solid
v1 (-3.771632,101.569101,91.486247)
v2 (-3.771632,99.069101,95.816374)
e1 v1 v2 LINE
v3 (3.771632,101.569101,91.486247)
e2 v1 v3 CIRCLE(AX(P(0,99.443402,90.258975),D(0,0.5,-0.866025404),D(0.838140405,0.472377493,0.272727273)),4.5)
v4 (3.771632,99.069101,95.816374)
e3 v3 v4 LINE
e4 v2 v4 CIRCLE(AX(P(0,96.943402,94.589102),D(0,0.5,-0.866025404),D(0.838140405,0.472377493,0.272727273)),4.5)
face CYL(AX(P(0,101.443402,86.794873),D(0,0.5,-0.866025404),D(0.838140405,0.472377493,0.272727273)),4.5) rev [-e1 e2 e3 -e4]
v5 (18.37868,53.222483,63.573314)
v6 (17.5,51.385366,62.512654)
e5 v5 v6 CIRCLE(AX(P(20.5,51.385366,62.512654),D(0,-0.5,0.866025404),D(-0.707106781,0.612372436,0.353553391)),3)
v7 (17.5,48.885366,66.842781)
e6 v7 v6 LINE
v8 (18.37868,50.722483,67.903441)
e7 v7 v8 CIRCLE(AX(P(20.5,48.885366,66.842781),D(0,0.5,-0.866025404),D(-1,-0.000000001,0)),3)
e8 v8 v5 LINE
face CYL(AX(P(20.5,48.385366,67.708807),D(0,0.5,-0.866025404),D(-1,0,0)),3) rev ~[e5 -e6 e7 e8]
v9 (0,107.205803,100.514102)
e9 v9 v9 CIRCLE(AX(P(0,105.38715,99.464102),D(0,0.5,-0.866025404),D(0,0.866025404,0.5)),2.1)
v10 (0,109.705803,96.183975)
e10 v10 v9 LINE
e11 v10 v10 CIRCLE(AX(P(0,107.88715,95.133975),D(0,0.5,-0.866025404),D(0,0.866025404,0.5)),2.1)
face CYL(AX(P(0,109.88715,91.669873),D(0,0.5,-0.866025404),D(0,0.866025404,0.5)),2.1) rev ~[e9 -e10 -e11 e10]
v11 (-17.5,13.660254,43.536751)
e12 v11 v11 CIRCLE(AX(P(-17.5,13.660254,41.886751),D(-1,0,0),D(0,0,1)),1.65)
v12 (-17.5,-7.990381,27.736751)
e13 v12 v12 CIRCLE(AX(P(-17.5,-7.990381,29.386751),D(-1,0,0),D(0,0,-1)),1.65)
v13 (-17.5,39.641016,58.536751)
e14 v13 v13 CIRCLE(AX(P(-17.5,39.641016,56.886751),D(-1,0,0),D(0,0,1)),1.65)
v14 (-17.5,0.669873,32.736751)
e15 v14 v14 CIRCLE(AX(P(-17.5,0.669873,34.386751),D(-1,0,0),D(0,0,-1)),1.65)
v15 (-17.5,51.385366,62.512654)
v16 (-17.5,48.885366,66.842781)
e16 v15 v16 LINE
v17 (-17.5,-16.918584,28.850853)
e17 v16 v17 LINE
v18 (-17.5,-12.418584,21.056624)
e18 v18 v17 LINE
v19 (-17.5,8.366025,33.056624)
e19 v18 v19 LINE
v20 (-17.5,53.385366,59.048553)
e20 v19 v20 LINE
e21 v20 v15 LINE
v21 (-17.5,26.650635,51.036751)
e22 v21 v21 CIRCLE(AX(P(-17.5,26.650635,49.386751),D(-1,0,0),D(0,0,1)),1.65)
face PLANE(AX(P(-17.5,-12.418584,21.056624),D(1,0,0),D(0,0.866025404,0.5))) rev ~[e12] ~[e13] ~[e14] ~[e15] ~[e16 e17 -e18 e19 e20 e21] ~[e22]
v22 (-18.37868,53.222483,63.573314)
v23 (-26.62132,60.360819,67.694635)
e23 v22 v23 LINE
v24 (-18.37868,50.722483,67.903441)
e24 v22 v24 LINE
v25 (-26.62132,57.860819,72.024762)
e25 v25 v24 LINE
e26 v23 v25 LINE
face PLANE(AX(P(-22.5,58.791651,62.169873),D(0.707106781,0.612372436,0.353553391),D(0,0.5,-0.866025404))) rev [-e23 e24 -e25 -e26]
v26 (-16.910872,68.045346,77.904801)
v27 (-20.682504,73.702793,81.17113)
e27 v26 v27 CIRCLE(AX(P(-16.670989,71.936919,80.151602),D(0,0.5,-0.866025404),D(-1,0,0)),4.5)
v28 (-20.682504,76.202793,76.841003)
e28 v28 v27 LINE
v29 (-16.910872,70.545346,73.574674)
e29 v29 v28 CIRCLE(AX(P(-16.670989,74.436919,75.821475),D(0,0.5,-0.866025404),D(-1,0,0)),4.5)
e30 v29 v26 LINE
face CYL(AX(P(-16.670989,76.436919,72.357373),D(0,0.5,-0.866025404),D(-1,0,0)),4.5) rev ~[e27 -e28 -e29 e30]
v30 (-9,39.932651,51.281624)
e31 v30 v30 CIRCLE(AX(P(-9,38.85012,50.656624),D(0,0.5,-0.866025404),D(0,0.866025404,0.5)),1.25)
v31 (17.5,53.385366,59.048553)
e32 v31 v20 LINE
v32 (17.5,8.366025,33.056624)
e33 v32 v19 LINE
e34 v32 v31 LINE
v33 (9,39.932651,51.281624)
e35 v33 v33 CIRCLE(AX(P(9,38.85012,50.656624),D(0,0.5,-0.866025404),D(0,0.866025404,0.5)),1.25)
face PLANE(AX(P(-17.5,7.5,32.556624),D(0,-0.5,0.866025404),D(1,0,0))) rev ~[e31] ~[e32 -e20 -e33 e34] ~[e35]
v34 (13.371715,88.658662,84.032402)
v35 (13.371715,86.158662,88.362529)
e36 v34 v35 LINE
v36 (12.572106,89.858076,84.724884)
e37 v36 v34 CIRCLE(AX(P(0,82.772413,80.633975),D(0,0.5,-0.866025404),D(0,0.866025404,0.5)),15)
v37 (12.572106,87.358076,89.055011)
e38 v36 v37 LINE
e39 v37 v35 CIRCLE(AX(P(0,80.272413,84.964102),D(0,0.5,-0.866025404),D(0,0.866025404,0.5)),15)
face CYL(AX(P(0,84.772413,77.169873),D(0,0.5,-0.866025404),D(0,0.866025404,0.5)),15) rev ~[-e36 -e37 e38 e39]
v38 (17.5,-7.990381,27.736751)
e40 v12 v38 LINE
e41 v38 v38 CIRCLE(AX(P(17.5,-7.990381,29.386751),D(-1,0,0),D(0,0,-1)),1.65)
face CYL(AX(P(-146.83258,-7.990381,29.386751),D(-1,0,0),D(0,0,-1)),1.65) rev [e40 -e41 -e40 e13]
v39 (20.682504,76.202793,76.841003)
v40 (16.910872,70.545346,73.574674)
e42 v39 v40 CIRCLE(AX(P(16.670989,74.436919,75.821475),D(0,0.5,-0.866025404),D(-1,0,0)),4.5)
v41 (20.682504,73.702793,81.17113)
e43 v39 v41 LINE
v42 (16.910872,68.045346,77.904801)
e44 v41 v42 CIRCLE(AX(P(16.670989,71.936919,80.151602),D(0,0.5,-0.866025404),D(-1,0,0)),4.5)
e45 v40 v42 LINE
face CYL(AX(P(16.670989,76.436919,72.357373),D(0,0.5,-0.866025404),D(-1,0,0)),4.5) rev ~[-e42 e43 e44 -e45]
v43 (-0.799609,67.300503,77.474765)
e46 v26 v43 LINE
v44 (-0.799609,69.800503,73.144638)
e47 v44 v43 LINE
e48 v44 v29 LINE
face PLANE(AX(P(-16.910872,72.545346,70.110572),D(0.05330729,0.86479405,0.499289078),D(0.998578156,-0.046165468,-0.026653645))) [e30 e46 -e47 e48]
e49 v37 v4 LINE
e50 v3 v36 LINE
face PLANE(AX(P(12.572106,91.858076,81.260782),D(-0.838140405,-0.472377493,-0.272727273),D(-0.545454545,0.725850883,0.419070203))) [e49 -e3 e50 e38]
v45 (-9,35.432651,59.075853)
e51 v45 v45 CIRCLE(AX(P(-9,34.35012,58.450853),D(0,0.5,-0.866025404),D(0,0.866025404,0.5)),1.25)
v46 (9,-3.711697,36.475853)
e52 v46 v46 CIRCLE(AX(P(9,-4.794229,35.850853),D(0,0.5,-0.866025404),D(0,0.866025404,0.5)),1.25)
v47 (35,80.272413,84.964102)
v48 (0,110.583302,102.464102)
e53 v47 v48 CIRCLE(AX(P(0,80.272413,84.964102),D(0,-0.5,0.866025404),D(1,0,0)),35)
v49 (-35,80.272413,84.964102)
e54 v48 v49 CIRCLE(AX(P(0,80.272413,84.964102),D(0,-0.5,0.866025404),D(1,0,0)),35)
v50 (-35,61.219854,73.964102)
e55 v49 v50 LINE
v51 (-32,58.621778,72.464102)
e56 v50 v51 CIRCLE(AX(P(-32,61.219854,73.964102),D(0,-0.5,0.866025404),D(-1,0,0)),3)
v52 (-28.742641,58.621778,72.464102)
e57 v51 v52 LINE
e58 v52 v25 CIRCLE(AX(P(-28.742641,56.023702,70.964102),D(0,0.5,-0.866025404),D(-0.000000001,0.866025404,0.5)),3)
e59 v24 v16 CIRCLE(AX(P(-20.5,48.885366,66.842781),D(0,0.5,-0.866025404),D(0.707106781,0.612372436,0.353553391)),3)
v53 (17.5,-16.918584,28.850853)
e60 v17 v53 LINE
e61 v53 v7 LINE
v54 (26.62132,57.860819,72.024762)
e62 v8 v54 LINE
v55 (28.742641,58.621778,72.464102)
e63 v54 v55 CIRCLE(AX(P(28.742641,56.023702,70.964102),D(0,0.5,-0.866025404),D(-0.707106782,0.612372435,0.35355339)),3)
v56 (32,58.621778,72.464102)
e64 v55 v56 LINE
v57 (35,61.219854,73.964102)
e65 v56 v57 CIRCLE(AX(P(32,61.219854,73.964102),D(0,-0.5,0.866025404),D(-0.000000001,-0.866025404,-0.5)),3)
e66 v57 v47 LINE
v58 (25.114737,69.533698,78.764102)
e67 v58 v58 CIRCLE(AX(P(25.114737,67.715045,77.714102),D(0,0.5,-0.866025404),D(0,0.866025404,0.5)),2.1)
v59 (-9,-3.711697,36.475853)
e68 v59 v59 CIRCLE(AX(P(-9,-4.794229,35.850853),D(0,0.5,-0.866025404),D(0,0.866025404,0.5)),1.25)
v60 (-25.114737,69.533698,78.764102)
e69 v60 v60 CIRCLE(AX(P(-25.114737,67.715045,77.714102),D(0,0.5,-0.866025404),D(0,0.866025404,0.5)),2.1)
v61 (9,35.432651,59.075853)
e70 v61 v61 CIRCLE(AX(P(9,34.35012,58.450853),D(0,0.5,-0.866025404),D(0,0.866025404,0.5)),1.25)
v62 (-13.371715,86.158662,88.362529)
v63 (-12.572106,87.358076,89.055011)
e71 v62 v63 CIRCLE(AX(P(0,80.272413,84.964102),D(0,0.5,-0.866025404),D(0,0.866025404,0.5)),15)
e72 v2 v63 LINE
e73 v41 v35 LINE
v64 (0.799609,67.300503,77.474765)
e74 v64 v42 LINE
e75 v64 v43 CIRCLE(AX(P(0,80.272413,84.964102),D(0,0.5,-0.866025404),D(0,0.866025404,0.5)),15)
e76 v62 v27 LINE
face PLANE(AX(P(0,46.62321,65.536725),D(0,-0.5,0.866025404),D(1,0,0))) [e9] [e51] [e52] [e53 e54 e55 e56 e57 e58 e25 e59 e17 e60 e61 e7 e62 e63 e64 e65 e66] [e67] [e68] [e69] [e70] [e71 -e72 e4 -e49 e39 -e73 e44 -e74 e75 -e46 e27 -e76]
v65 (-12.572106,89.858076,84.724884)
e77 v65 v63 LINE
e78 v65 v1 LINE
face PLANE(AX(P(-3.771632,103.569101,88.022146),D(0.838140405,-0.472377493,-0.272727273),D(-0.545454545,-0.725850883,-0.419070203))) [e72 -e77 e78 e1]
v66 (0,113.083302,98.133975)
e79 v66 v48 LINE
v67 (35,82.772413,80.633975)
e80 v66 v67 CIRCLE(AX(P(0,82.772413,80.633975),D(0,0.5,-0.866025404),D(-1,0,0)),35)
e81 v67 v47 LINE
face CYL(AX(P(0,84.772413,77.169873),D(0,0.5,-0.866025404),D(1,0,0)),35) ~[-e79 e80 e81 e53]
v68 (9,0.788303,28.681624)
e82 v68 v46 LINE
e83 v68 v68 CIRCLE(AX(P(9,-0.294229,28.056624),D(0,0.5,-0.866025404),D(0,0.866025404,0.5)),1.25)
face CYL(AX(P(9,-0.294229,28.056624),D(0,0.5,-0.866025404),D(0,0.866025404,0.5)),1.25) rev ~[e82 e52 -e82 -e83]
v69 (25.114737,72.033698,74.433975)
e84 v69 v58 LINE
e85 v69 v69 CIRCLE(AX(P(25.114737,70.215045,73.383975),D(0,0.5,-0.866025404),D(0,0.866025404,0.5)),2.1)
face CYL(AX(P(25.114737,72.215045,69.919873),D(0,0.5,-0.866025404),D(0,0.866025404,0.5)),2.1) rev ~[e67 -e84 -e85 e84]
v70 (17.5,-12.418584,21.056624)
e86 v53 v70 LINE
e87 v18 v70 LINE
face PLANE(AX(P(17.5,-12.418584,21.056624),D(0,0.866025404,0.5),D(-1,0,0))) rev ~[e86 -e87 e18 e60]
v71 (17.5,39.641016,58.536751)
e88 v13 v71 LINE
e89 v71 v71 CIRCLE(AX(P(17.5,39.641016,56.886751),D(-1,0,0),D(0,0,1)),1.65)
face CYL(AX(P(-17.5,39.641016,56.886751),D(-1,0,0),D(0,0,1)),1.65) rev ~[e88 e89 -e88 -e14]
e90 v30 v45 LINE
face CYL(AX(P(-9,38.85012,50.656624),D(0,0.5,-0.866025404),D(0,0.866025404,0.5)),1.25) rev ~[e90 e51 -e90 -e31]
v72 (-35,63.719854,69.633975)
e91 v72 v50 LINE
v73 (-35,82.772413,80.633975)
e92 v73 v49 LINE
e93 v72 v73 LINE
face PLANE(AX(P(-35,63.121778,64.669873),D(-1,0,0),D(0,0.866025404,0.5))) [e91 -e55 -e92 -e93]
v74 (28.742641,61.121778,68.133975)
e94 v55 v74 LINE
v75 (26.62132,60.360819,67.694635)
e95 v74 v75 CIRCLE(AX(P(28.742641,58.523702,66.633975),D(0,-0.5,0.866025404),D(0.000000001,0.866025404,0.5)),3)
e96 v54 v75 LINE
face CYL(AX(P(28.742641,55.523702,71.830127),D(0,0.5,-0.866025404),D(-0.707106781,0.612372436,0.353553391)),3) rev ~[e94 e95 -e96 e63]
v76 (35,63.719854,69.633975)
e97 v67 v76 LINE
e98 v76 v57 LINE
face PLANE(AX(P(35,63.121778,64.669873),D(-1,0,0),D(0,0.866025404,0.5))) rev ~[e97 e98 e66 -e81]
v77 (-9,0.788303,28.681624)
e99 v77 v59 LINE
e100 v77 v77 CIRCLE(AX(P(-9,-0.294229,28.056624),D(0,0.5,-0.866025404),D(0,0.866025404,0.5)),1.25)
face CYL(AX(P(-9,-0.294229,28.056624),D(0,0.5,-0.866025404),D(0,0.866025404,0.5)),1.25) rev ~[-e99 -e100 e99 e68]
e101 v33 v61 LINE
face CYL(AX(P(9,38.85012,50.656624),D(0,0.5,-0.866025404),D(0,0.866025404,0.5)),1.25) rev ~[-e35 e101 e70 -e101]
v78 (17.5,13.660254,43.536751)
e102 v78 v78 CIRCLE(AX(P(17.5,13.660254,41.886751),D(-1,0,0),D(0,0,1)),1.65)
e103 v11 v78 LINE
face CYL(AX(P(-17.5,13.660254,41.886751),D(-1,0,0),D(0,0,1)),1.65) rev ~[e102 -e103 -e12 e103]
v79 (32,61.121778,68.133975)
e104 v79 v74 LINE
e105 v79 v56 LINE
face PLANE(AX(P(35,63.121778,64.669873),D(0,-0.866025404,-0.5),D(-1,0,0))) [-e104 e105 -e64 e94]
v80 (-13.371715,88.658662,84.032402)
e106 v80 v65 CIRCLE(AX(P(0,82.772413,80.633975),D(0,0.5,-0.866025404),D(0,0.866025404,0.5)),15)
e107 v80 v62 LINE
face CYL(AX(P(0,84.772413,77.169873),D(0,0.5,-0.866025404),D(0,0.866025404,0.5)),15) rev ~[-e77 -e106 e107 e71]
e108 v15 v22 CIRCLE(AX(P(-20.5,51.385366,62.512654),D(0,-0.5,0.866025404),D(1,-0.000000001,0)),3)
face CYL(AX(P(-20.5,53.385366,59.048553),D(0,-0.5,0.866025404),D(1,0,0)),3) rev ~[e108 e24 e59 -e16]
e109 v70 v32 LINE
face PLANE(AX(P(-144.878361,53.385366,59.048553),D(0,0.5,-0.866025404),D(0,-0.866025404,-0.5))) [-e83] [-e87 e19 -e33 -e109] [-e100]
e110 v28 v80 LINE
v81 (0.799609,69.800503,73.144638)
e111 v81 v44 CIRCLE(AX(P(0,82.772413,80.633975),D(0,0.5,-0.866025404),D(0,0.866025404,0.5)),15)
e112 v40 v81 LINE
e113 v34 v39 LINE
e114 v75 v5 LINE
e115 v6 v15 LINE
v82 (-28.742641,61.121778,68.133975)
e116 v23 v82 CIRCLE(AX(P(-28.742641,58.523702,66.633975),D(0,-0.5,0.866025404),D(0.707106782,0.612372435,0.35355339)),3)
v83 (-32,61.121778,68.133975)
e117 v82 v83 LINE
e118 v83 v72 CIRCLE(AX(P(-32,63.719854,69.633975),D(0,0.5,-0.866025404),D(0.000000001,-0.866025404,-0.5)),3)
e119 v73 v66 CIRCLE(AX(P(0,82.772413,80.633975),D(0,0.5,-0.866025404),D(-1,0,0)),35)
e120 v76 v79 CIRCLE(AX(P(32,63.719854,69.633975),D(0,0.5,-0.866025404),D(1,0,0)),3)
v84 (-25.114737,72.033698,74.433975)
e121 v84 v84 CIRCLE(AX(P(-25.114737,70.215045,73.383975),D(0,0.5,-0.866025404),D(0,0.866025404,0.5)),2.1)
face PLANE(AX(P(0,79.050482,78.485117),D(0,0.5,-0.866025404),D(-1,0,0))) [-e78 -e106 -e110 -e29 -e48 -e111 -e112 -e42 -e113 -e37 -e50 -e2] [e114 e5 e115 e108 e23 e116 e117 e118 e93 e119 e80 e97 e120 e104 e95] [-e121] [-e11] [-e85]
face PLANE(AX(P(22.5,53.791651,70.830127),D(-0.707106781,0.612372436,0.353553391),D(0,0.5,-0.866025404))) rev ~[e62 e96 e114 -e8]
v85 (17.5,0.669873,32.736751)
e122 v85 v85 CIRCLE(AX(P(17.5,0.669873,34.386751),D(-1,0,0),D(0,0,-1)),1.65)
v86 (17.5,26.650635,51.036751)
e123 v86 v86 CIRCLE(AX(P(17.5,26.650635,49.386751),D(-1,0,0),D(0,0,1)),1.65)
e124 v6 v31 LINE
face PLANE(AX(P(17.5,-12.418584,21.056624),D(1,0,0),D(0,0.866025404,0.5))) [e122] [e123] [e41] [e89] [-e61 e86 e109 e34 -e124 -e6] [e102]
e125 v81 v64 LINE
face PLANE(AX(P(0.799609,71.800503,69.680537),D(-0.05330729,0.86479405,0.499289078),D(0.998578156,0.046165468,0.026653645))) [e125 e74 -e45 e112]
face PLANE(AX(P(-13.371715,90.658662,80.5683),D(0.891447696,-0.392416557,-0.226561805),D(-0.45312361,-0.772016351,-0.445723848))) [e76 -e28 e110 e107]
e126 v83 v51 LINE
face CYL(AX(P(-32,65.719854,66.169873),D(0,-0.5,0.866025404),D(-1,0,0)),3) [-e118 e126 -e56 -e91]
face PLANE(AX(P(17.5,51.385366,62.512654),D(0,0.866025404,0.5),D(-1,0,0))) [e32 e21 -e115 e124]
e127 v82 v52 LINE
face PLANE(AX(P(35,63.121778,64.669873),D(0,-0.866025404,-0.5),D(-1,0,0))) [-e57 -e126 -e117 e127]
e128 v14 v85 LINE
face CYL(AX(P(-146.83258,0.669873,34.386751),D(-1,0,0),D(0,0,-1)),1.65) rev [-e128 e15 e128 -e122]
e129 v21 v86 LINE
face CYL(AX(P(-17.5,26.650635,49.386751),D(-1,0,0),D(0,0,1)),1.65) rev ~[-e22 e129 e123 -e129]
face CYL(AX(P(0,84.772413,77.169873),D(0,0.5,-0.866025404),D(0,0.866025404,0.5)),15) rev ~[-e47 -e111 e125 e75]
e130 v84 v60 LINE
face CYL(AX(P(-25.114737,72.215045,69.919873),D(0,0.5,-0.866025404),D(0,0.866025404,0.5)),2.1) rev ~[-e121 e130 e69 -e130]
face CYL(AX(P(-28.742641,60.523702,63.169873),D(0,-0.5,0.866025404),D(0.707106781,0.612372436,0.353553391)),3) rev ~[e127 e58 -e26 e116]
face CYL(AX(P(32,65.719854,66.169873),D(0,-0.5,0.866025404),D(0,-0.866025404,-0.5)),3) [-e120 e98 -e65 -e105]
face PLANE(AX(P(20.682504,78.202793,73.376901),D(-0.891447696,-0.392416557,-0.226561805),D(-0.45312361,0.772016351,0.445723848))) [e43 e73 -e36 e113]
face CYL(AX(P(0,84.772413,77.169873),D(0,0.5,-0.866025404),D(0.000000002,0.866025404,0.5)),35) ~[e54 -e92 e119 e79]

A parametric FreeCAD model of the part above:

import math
import FreeCAD as App
import Part
import Sketcher
from FreeCAD import Vector
Q = App.Units.Quantity


def edges_at(feature, points):
    """Names of the edges that pass closest to the given points."""
    edges = feature.Shape.Edges
    near = lambda p: min(range(len(edges)), key=lambda i: edges[i].distToShape(Part.Vertex(*p))[0])
    return sorted({f"Edge{near(p) + 1}" for p in points})

doc = App.newDocument("Part")
body = doc.addObject("PartDesign::Body", "Body")

# Sketch on XY plane
sketch1 = doc.addObject("Sketcher::SketchObject", "Sketch")
body.addObject(sketch1)
sketch1.AttachmentSupport = (doc.XY_Plane, [""])
sketch1.MapMode = "FlatFace"
sketch1.addGeometry([
    Part.LineSegment(Vector(-18, 5, 0), Vector(-18, -5, 0)),
    Part.LineSegment(Vector(-18, -5, 0), Vector(18, -5, 0)),
    Part.LineSegment(Vector(18, -5, 0), Vector(18, 5, 0)),
    Part.LineSegment(Vector(18, 5, 0), Vector(-18, 5, 0)),
], False)
sketch1.addConstraint([
    Sketcher.Constraint("Coincident", 0, 2, 1, 1),
    Sketcher.Constraint("Coincident", 1, 2, 2, 1),
    Sketcher.Constraint("Coincident", 2, 2, 3, 1),
    Sketcher.Constraint("Coincident", 3, 2, 0, 1),
    Sketcher.Constraint("Vertical", 0),
    Sketcher.Constraint("Horizontal", 1),
    Sketcher.Constraint("Vertical", 2),
    Sketcher.Constraint("Horizontal", 3),
    Sketcher.Constraint("Symmetric", 0, 2, 2, 2, -1, 1),
    Sketcher.Constraint("DistanceX", 1, 1, 1, 2, 35.0),
    Sketcher.Constraint("DistanceY", 0, 2, 0, 1, 10.0),
])
pad1 = doc.addObject("PartDesign::Pad", "Pad")
body.addObject(pad1)
pad1.Profile = sketch1
pad1.Length = 30

# Sketch on YZ plane
sketch2 = doc.addObject("Sketcher::SketchObject", "Sketch001")
body.addObject(sketch2)
sketch2.AttachmentSupport = (doc.YZ_Plane, [""])
sketch2.MapMode = "FlatFace"
sketch2.AttachmentOffset = App.Placement(Vector(0, 0, 17.5), App.Rotation())
sketch2.addGeometry([
    Part.Circle(Vector(0, 26, 0), Vector(0, 0, 1), 1.6),
    Part.Circle(Vector(0, 4, 0), Vector(0, 0, 1), 1.6),
], False)
sketch2.addConstraint([
    Sketcher.Constraint("Equal", 0, 1),
    Sketcher.Constraint("PointOnObject", 0, 3, -2),
    Sketcher.Constraint("PointOnObject", 1, 3, -2),
    Sketcher.Constraint("Diameter", 0, 3.3),
    Sketcher.Constraint("DistanceY", -1, 1, 0, 3, 26.0),
    Sketcher.Constraint("DistanceY", -1, 1, 1, 3, 4.0),
])
pocket1 = doc.addObject("PartDesign::Pocket", "Pocket")
body.addObject(pocket1)
pocket1.Profile = sketch2
pocket1.Type = "ThroughAll"

# Sketch on XY plane
sketch3 = doc.addObject("Sketcher::SketchObject", "Sketch002")
body.addObject(sketch3)
sketch3.AttachmentSupport = (doc.XY_Plane, [""])
sketch3.MapMode = "FlatFace"
sketch3.AttachmentOffset = App.Placement(Vector(0, 0, 30), App.Rotation())
sketch3.addGeometry([
    Part.LineSegment(Vector(-18, 5, 0), Vector(-18, -5, 0)),
    Part.LineSegment(Vector(-18, -5, 0), Vector(18, -5, 0)),
    Part.LineSegment(Vector(18, -5, 0), Vector(18, 5, 0)),
    Part.LineSegment(Vector(18, 5, 0), Vector(-18, 5, 0)),
], False)
sketch3.addConstraint([
    Sketcher.Constraint("Coincident", 0, 2, 1, 1),
    Sketcher.Constraint("Coincident", 1, 2, 2, 1),
    Sketcher.Constraint("Coincident", 2, 2, 3, 1),
    Sketcher.Constraint("Coincident", 3, 2, 0, 1),
    Sketcher.Constraint("Vertical", 0),
    Sketcher.Constraint("Horizontal", 1),
    Sketcher.Constraint("Vertical", 2),
    Sketcher.Constraint("Horizontal", 3),
    Sketcher.Constraint("Symmetric", 0, 2, 2, 2, -1, 1),
    Sketcher.Constraint("DistanceX", 1, 1, 1, 2, 35.0),
    Sketcher.Constraint("DistanceY", 0, 2, 0, 1, 10.0),
])

# Sketch on YZ plane
sketch4 = doc.addObject("Sketcher::SketchObject", "Sketch003")
body.addObject(sketch4)
sketch4.AttachmentSupport = (doc.YZ_Plane, [""])
sketch4.MapMode = "FlatFace"
sketch4.addGeometry([
    Part.LineSegment(Vector(0, 30, 0), Vector(0, 31.1, 0)),
    Part.ArcOfCircle(Part.Circle(Vector(5, 31.1, 0), Vector(0, 0, 1), 5), math.radians(120), math.radians(180)),
    Part.LineSegment(Vector(2.5, 35.4, 0), Vector(112.6, 99, 0)),
], False)
sketch4.addConstraint([
    Sketcher.Constraint("Tangent", 0, 2, 1, 2),
    Sketcher.Constraint("Tangent", 1, 1, 2, 1),
    Sketcher.Constraint("Vertical", 0),
    Sketcher.Constraint("PointOnObject", 0, 1, -2),
    Sketcher.Constraint("Radius", 1, 5.0),
    Sketcher.Constraint("Angle", 2, Q("30 deg")),
    Sketcher.Constraint("DistanceY", -1, 1, 0, 1, 30.0),
    Sketcher.Constraint("DistanceY", -1, 1, 2, 2, 99.0),
    Sketcher.Constraint("DistanceY", 0, 1, 0, 2, 1.113249),
])
doc.recompute()

additivepipe = doc.addObject("PartDesign::AdditivePipe", "AdditivePipe")
body.addObject(additivepipe)
additivepipe.Profile = sketch3
additivepipe.Spine = (sketch4, ["Edge1", "Edge2", "Edge3"])
doc.recompute()

fillet = doc.addObject("PartDesign::Fillet", "Fillet")
body.addObject(fillet)
fillet.Base = (additivepipe, edges_at(additivepipe, [(0, 5, 31.113)]))
fillet.Radius = 5

# Sketch on an angled plane
sketch5 = doc.addObject("Sketcher::SketchObject", "Sketch004")
body.addObject(sketch5)
sketch5.Placement = App.Placement(Vector(0, -12.222432, 21.169873), App.Rotation(Vector(-1, 0, 0), Vector(0, 0.866025404, 0.5), Vector(0, 0.5, -0.866025404), "ZXY"))
sketch5.addGeometry([
    Part.LineSegment(Vector(-35, 147, 0), Vector(-35, 87, 0)),
    Part.LineSegment(Vector(-35, 87, 0), Vector(35, 87, 0)),
    Part.LineSegment(Vector(35, 87, 0), Vector(35, 147, 0)),
    Part.LineSegment(Vector(35, 147, 0), Vector(-35, 147, 0)),
], False)
sketch5.addConstraint([
    Sketcher.Constraint("Coincident", 0, 2, 1, 1),
    Sketcher.Constraint("Coincident", 1, 2, 2, 1),
    Sketcher.Constraint("Coincident", 2, 2, 3, 1),
    Sketcher.Constraint("Coincident", 3, 2, 0, 1),
    Sketcher.Constraint("Vertical", 0),
    Sketcher.Constraint("Horizontal", 1),
    Sketcher.Constraint("Vertical", 2),
    Sketcher.Constraint("Horizontal", 3),
    Sketcher.Constraint("DistanceX", 1, 1, 1, 2, 70.0),
    Sketcher.Constraint("DistanceY", 0, 2, 0, 1, 60.0),
    Sketcher.Constraint("DistanceX", 0, 2, -1, 1, 35.0),
    Sketcher.Constraint("DistanceY", -1, 1, 0, 2, 87.0),
])
pad2 = doc.addObject("PartDesign::Pad", "Pad001")
body.addObject(pad2)
pad2.Profile = sketch5
pad2.Length = 10
pad2.Reversed = True
doc.recompute()

chamfer = doc.addObject("PartDesign::Chamfer", "Chamfer")
body.addObject(chamfer)
chamfer.Base = (pad2, edges_at(pad2, [(17.5, 60.622, 69), (-17.5, 60.622, 69)]))
chamfer.Size = 10

# Sketch on an angled plane
sketch6 = doc.addObject("Sketcher::SketchObject", "Sketch005")
body.addObject(sketch6)
sketch6.Placement = App.Placement(Vector(0, -12.222432, 21.169873), App.Rotation(Vector(-1, 0, 0), Vector(0, 0.866025404, 0.5), Vector(0, 0.5, -0.866025404), "ZXY"))
sketch6.addGeometry([
    Part.LineSegment(Vector(-35, 147, 0), Vector(-35, 112, 0)),  # 0
    Part.ArcOfCircle(Part.Circle(Vector(0, 112, 0), Vector(0, 0, 1), 35), math.radians(90), math.radians(180)),  # 1
    Part.LineSegment(Vector(0, 147, 0), Vector(-35, 147, 0)),  # 2
    Part.ArcOfCircle(Part.Circle(Vector(0, 112, 0), Vector(0, 0, 1), 35), math.radians(0), math.radians(90)),  # 3
    Part.LineSegment(Vector(35, 112, 0), Vector(35, 147, 0)),  # 4
    Part.LineSegment(Vector(35, 147, 0), Vector(0, 147, 0)),  # 5
], False)
sketch6.addConstraint([
    Sketcher.Constraint("Tangent", 0, 2, 1, 2),
    Sketcher.Constraint("Tangent", 1, 1, 2, 1),
    Sketcher.Constraint("Coincident", 2, 2, 0, 1),
    Sketcher.Constraint("Tangent", 3, 1, 4, 1),
    Sketcher.Constraint("Coincident", 4, 2, 5, 1),
    Sketcher.Constraint("Tangent", 5, 2, 3, 2),
    Sketcher.Constraint("Vertical", 0),
    Sketcher.Constraint("Horizontal", 2),
    Sketcher.Constraint("Vertical", 4),
    Sketcher.Constraint("Horizontal", 5),
    Sketcher.Constraint("Coincident", 3, 3, 1, 3),
    Sketcher.Constraint("Equal", 1, 3),
    Sketcher.Constraint("PointOnObject", 1, 3, -2),
    Sketcher.Constraint("Radius", 1, 35.0),
    Sketcher.Constraint("DistanceY", -1, 1, 1, 3, 112.0),
])
pocket2 = doc.addObject("PartDesign::Pocket", "Pocket001")
body.addObject(pocket2)
pocket2.Profile = sketch6
pocket2.Length = 15

# Sketch on an angled plane
sketch7 = doc.addObject("Sketcher::SketchObject", "Sketch006")
body.addObject(sketch7)
sketch7.Placement = App.Placement(Vector(0, -12.222432, 21.169873), App.Rotation(Vector(-1, 0, 0), Vector(0, 0.866025404, 0.5), Vector(0, 0.5, -0.866025404), "ZXY"))
sketch7.addGeometry(Part.Circle(Vector(0, 112, 0), Vector(0, 0, 1), 15), False)
sketch7.addConstraint([
    Sketcher.Constraint("PointOnObject", 0, 3, -2),
    Sketcher.Constraint("Diameter", 0, 30.0),
    Sketcher.Constraint("DistanceY", -1, 1, 0, 3, 112.0),
])
pocket3 = doc.addObject("PartDesign::Pocket", "Pocket002")
body.addObject(pocket3)
pocket3.Profile = sketch7
pocket3.Length = 15

# Sketch on an angled plane
sketch8 = doc.addObject("Sketcher::SketchObject", "Sketch007")
body.addObject(sketch8)
sketch8.Placement = App.Placement(Vector(0, -12.222432, 21.169873), App.Rotation(Vector(-1, 0, 0), Vector(0, 0.866025404, 0.5), Vector(0, 0.5, -0.866025404), "ZXY"))
sketch8.addGeometry([
    Part.Circle(Vector(0, 141, 0), Vector(0, 0, 1), 2.1),
    Part.Circle(Vector(-25.1, 97.5, 0), Vector(0, 0, 1), 2.1),
    Part.Circle(Vector(25.1, 97.5, 0), Vector(0, 0, 1), 2.1),
], False)
sketch8.addConstraint([
    Sketcher.Constraint("Equal", 0, 1),
    Sketcher.Constraint("Equal", 1, 2),
    Sketcher.Constraint("Symmetric", 1, 3, 2, 3, -2),
    Sketcher.Constraint("PointOnObject", 0, 3, -2),
    Sketcher.Constraint("Diameter", 0, 4.2),
    Sketcher.Constraint("DistanceY", -1, 1, 0, 3, 141.0),
    Sketcher.Constraint("DistanceY", -1, 1, 1, 3, 97.5),
    Sketcher.Constraint("DistanceX", 1, 3, -1, 1, 25.114737),
])
pocket4 = doc.addObject("PartDesign::Pocket", "Pocket003")
body.addObject(pocket4)
pocket4.Profile = sketch8
pocket4.Type = "ThroughAll"

# Sketch on an angled plane
sketch9 = doc.addObject("Sketcher::SketchObject", "Sketch008")
body.addObject(sketch9)
sketch9.Placement = App.Placement(Vector(0, -12.222432, 21.169873), App.Rotation(Vector(-1, 0, 0), Vector(0, 0.866025404, 0.5), Vector(0, 0.5, -0.866025404), "ZXY"))
sketch9.addGeometry([
    Part.Circle(Vector(-16.7, 102.4, 0), Vector(0, 0, 1), 4.5),
    Part.Circle(Vector(16.7, 102.4, 0), Vector(0, 0, 1), 4.5),
], False)
sketch9.addConstraint([
    Sketcher.Constraint("Equal", 0, 1),
    Sketcher.Constraint("Symmetric", 0, 3, 1, 3, -2),
    Sketcher.Constraint("Diameter", 0, 9.0),
    Sketcher.Constraint("DistanceY", -1, 1, 0, 3, 102.375),
    Sketcher.Constraint("DistanceX", 0, 3, -1, 1, 16.670989),
])
pocket5 = doc.addObject("PartDesign::Pocket", "Pocket004")
body.addObject(pocket5)
pocket5.Profile = sketch9
pocket5.Type = "ThroughAll"

# Sketch on an angled plane
sketch10 = doc.addObject("Sketcher::SketchObject", "Sketch009")
body.addObject(sketch10)
sketch10.Placement = App.Placement(Vector(0, -12.222432, 21.169873), App.Rotation(Vector(-1, 0, 0), Vector(0, 0.866025404, 0.5), Vector(0, 0.5, -0.866025404), "ZXY"))
sketch10.addGeometry([
    Part.LineSegment(Vector(-13.4, 118.8, 0), Vector(-20.7, 104.4, 0)),  # 0
    Part.ArcOfCircle(Part.Circle(Vector(-16.7, 102.4, 0), Vector(0, 0, 1), 4.5), math.radians(153), math.radians(267)),  # 1
    Part.LineSegment(Vector(-16.9, 97.9, 0), Vector(-0.8, 97, 0)),  # 2
    Part.ArcOfCircle(Part.Circle(Vector(0, 112, 0), Vector(0, 0, 1), 15), math.radians(-93.06), math.radians(-86.94)),  # 3
    Part.LineSegment(Vector(0.8, 97, 0), Vector(16.9, 97.9, 0)),  # 4
    Part.ArcOfCircle(Part.Circle(Vector(16.7, 102.4, 0), Vector(0, 0, 1), 4.5), math.radians(-87), math.radians(27)),  # 5
    Part.LineSegment(Vector(20.7, 104.4, 0), Vector(13.4, 118.8, 0)),  # 6
    Part.ArcOfCircle(Part.Circle(Vector(0, 112, 0), Vector(0, 0, 1), 15), math.radians(26.94), math.radians(33.06)),  # 7
    Part.LineSegment(Vector(12.6, 120.2, 0), Vector(3.8, 133.7, 0)),  # 8
    Part.ArcOfCircle(Part.Circle(Vector(0, 131.3, 0), Vector(0, 0, 1), 4.5), math.radians(33), math.radians(147)),  # 9
    Part.LineSegment(Vector(-3.8, 133.7, 0), Vector(-12.6, 120.2, 0)),  # 10
    Part.ArcOfCircle(Part.Circle(Vector(0, 112, 0), Vector(0, 0, 1), 15), math.radians(146.94), math.radians(153.06)),  # 11
], False)
sketch10.addConstraint([
    Sketcher.Constraint("Tangent", 0, 2, 1, 1),
    Sketcher.Constraint("Tangent", 1, 2, 2, 1),
    Sketcher.Constraint("Tangent", 2, 2, 3, 1),
    Sketcher.Constraint("Tangent", 3, 2, 4, 1),
    Sketcher.Constraint("Tangent", 4, 2, 5, 1),
    Sketcher.Constraint("Tangent", 5, 2, 6, 1),
    Sketcher.Constraint("Tangent", 6, 2, 7, 1),
    Sketcher.Constraint("Tangent", 7, 2, 8, 1),
    Sketcher.Constraint("Tangent", 8, 2, 9, 1),
    Sketcher.Constraint("Tangent", 9, 2, 10, 1),
    Sketcher.Constraint("Tangent", 10, 2, 11, 1),
    Sketcher.Constraint("Tangent", 11, 2, 0, 1),
    Sketcher.Constraint("Coincident", 7, 3, 3, 3),
    Sketcher.Constraint("Coincident", 11, 3, 3, 3),
    Sketcher.Constraint("Equal", 1, 5),
    Sketcher.Constraint("Equal", 3, 7),
    Sketcher.Constraint("Equal", 5, 9),
    Sketcher.Constraint("Equal", 7, 11),
    Sketcher.Constraint("Symmetric", 1, 3, 5, 3, -2),
    Sketcher.Constraint("Symmetric", 8, 2, 9, 2, -2),
    Sketcher.Constraint("Equal", 6, 8),
    Sketcher.Constraint("Radius", 3, 15.0),
    Sketcher.Constraint("Radius", 1, 4.5),
    Sketcher.Constraint("DistanceY", -1, 1, 3, 3, 112.0),
    Sketcher.Constraint("DistanceY", -1, 1, 9, 3, 131.25),
    Sketcher.Constraint("DistanceY", -1, 1, 1, 3, 102.375),
])
pocket6 = doc.addObject("PartDesign::Pocket", "Pocket005")
body.addObject(pocket6)
pocket6.Profile = sketch10
pocket6.Length = 25

# Sketch on an angled plane
sketch11 = doc.addObject("Sketcher::SketchObject", "Sketch010")
body.addObject(sketch11)
sketch11.Placement = App.Placement(Vector(0, -12.222432, 21.169873), App.Rotation(Vector(-1, 0, 0), Vector(0, 0.866025404, 0.5), Vector(0, 0.5, -0.866025404), "ZXY"))
sketch11.addGeometry([
    Part.LineSegment(Vector(-18, 23, 0), Vector(-18, -4, 0)),
    Part.LineSegment(Vector(-18, -4, 0), Vector(18, -4, 0)),
    Part.LineSegment(Vector(18, -4, 0), Vector(18, 23, 0)),
    Part.LineSegment(Vector(18, 23, 0), Vector(-18, 23, 0)),
], False)
sketch11.addConstraint([
    Sketcher.Constraint("Coincident", 0, 2, 1, 1),
    Sketcher.Constraint("Coincident", 1, 2, 2, 1),
    Sketcher.Constraint("Coincident", 2, 2, 3, 1),
    Sketcher.Constraint("Coincident", 3, 2, 0, 1),
    Sketcher.Constraint("Vertical", 0),
    Sketcher.Constraint("Horizontal", 1),
    Sketcher.Constraint("Vertical", 2),
    Sketcher.Constraint("Horizontal", 3),
    Sketcher.Constraint("DistanceX", 1, 1, 1, 2, 35.0),
    Sketcher.Constraint("DistanceX", 0, 2, -1, 1, 17.5),
    Sketcher.Constraint("DistanceY", 0, 2, 0, 1, 27.10363),
    Sketcher.Constraint("DistanceY", 0, 2, -1, 1, 4.330127),
])
pocket7 = doc.addObject("PartDesign::Pocket", "Pocket006")
body.addObject(pocket7)
pocket7.Profile = sketch11
pocket7.Type = "ThroughAll"
pocket7.Midplane = True

# Sketch on an angled plane
sketch12 = doc.addObject("Sketcher::SketchObject", "Sketch011")
body.addObject(sketch12)
sketch12.Placement = App.Placement(Vector(0, 19.722432, 11.386751), App.Rotation(Vector(1, 0, 0), Vector(0, -0.5, 0.866025404), Vector(0, -0.866025404, -0.5), "ZXY"))
sketch12.addGeometry([
    Part.LineSegment(Vector(-18, 34, 0), Vector(-18, 24, 0)),
    Part.LineSegment(Vector(-18, 24, 0), Vector(18, 24, 0)),
    Part.LineSegment(Vector(18, 24, 0), Vector(18, 34, 0)),
    Part.LineSegment(Vector(18, 34, 0), Vector(-18, 34, 0)),
], False)
sketch12.addConstraint([
    Sketcher.Constraint("Coincident", 0, 2, 1, 1),
    Sketcher.Constraint("Coincident", 1, 2, 2, 1),
    Sketcher.Constraint("Coincident", 2, 2, 3, 1),
    Sketcher.Constraint("Coincident", 3, 2, 0, 1),
    Sketcher.Constraint("Vertical", 0),
    Sketcher.Constraint("Horizontal", 1),
    Sketcher.Constraint("Vertical", 2),
    Sketcher.Constraint("Horizontal", 3),
    Sketcher.Constraint("DistanceX", 1, 1, 1, 2, 35.0),
    Sketcher.Constraint("DistanceY", 0, 2, 0, 1, 10.0),
    Sketcher.Constraint("DistanceX", 0, 2, -1, 1, 17.5),
    Sketcher.Constraint("DistanceY", -1, 1, 0, 2, 24.444864),
])
pad3 = doc.addObject("PartDesign::Pad", "Pad002")
body.addObject(pad3)
pad3.Profile = sketch12
pad3.Length = 23

# Sketch on YZ plane
sketch13 = doc.addObject("Sketcher::SketchObject", "Sketch012")
body.addObject(sketch13)
sketch13.AttachmentSupport = (doc.YZ_Plane, [""])
sketch13.MapMode = "FlatFace"
sketch13.AttachmentOffset = App.Placement(Vector(0, 0, 17.5), App.Rotation())
sketch13.addGeometry([
    Part.Circle(Vector(-8, 29.4, 0), Vector(0, 0, 1), 1.6),
    Part.Circle(Vector(0.7, 34.4, 0), Vector(0, 0, 1), 1.6),
], False)
sketch13.addConstraint([
    Sketcher.Constraint("Equal", 0, 1),
    Sketcher.Constraint("Diameter", 0, 3.3),
    Sketcher.Constraint("DistanceY", 0, 3, 1, 3, 5.0),
    Sketcher.Constraint("DistanceX", 0, 3, -1, 1, 7.990381),
    Sketcher.Constraint("DistanceY", -1, 1, 0, 3, 29.386751),
    Sketcher.Constraint("DistanceX", -1, 1, 1, 3, 0.669873),
])
pocket8 = doc.addObject("PartDesign::Pocket", "Pocket007")
body.addObject(pocket8)
pocket8.Profile = sketch13
pocket8.Type = "ThroughAll"
pocket8.Midplane = True
doc.recompute()

fillet2 = doc.addObject("PartDesign::Fillet", "Fillet001")
body.addObject(fillet2)
fillet2.Base = (pocket8, edges_at(pocket8, [
    (-35, 60.622, 69),
    (35, 60.622, 69),
    (-17.5, 51.962, 64),
    (-27.5, 60.622, 69),
    (27.5, 60.622, 69),
    (17.5, 51.962, 64),
]))
fillet2.Radius = 3

# Sketch on an angled plane
sketch14 = doc.addObject("Sketcher::SketchObject", "Sketch013")
body.addObject(sketch14)
sketch14.Placement = App.Placement(Vector(0, -14.222432, 24.633975), App.Rotation(Vector(-1, 0, 0), Vector(0, 0.866025404, 0.5), Vector(0, 0.5, -0.866025404), "ZXY"))
sketch14.addGeometry([
    Part.LineSegment(Vector(-17.5, 75.8, 0), Vector(17.5, 75.8, 0)),  # 0
    Part.ArcOfCircle(Part.Circle(Vector(20.5, 75.8, 0), Vector(0, 0, 1), 3), math.radians(135), math.radians(180)),  # 1
    Part.LineSegment(Vector(18.4, 77.9, 0), Vector(26.6, 86.1, 0)),  # 2
    Part.ArcOfCircle(Part.Circle(Vector(28.7, 84, 0), Vector(0, 0, 1), 3), math.radians(90), math.radians(135)),  # 3
    Part.LineSegment(Vector(28.7, 87, 0), Vector(32, 87, 0)),  # 4
    Part.ArcOfCircle(Part.Circle(Vector(32, 90, 0), Vector(0, 0, 1), 3), math.radians(-90), math.radians(0)),  # 5
    Part.LineSegment(Vector(35, 90, 0), Vector(35, 112, 0)),  # 6
    Part.ArcOfCircle(Part.Circle(Vector(0, 112, 0), Vector(0, 0, 1), 35), math.radians(0), math.radians(180)),  # 7
    Part.LineSegment(Vector(-35, 112, 0), Vector(-35, 90, 0)),  # 8
    Part.ArcOfCircle(Part.Circle(Vector(-32, 90, 0), Vector(0, 0, 1), 3), math.radians(180), math.radians(270)),  # 9
    Part.LineSegment(Vector(-32, 87, 0), Vector(-28.7, 87, 0)),  # 10
    Part.ArcOfCircle(Part.Circle(Vector(-28.7, 84, 0), Vector(0, 0, 1), 3), math.radians(45), math.radians(90)),  # 11
    Part.LineSegment(Vector(-26.6, 86.1, 0), Vector(-18.4, 77.9, 0)),  # 12
    Part.ArcOfCircle(Part.Circle(Vector(-20.5, 75.8, 0), Vector(0, 0, 1), 3), math.radians(0), math.radians(45)),  # 13
], False)
sketch14.addConstraint([
    Sketcher.Constraint("Coincident", 0, 2, 1, 2),
    Sketcher.Constraint("Tangent", 1, 1, 2, 1),
    Sketcher.Constraint("Tangent", 2, 2, 3, 2),
    Sketcher.Constraint("Tangent", 3, 1, 4, 1),
    Sketcher.Constraint("Tangent", 4, 2, 5, 1),
    Sketcher.Constraint("Tangent", 5, 2, 6, 1),
    Sketcher.Constraint("Tangent", 6, 2, 7, 1),
    Sketcher.Constraint("Tangent", 7, 2, 8, 1),
    Sketcher.Constraint("Tangent", 8, 2, 9, 1),
    Sketcher.Constraint("Tangent", 9, 2, 10, 1),
    Sketcher.Constraint("Tangent", 10, 2, 11, 2),
    Sketcher.Constraint("Tangent", 11, 1, 12, 1),
    Sketcher.Constraint("Tangent", 12, 2, 13, 2),
    Sketcher.Constraint("Coincident", 13, 1, 0, 1),
    Sketcher.Constraint("Horizontal", 0),
    Sketcher.Constraint("Horizontal", 4),
    Sketcher.Constraint("Vertical", 6),
    Sketcher.Constraint("Vertical", 8),
    Sketcher.Constraint("Horizontal", 10),
    Sketcher.Constraint("Equal", 1, 3),
    Sketcher.Constraint("Equal", 3, 5),
    Sketcher.Constraint("Equal", 5, 9),
    Sketcher.Constraint("Equal", 9, 11),
    Sketcher.Constraint("Equal", 11, 13),
    Sketcher.Constraint("Symmetric", 5, 3, 9, 3, -2),
    Sketcher.Constraint("Symmetric", 1, 3, 13, 3, -2),
    Sketcher.Constraint("Perpendicular", 2, 12),
    Sketcher.Constraint("Horizontal", 13, 3, 0, 2),
    Sketcher.Constraint("Horizontal", 2, 2, 11, 1),
    Sketcher.Constraint("Radius", 1, 3.0),
    Sketcher.Constraint("Radius", 7, 35.0),
    Sketcher.Constraint("DistanceX", 0, 1, 0, 2, 35.0),
    Sketcher.Constraint("DistanceY", 6, 1, 6, 2, 22.0),
    Sketcher.Constraint("DistanceY", -1, 1, 3, 3, 84.0),
    Sketcher.Constraint("DistanceX", 4, 1, 4, 2, 3.257359),
])
pocket9 = doc.addObject("PartDesign::Pocket", "Pocket008")
body.addObject(pocket9)
pocket9.Profile = sketch14
pocket9.Length = 4
pocket9.Reversed = True

# Sketch on an angled plane
sketch15 = doc.addObject("Sketcher::SketchObject", "Sketch014")
body.addObject(sketch15)
sketch15.Placement = App.Placement(Vector(0, -12.222432, 21.169873), App.Rotation(Vector(-1, 0, 0), Vector(0, 0.866025404, 0.5), Vector(0, 0.5, -0.866025404), "ZXY"))
sketch15.addGeometry([
    Part.LineSegment(Vector(-18, 24, 0), Vector(-18, 0, 0)),
    Part.LineSegment(Vector(-18, 0, 0), Vector(18, 0, 0)),
    Part.LineSegment(Vector(18, 0, 0), Vector(18, 24, 0)),
    Part.LineSegment(Vector(18, 24, 0), Vector(-18, 24, 0)),
], False)
sketch15.addConstraint([
    Sketcher.Constraint("Coincident", 0, 2, 1, 1),
    Sketcher.Constraint("Coincident", 1, 2, 2, 1),
    Sketcher.Constraint("Coincident", 2, 2, 3, 1),
    Sketcher.Constraint("Coincident", 3, 2, 0, 1),
    Sketcher.Constraint("Vertical", 0),
    Sketcher.Constraint("Horizontal", 1),
    Sketcher.Constraint("Vertical", 2),
    Sketcher.Constraint("Horizontal", 3),
    Sketcher.Constraint("DistanceX", 1, 1, 1, 2, 35.0),
    Sketcher.Constraint("DistanceY", 0, 2, 0, 1, 24.0),
    Sketcher.Constraint("DistanceX", 0, 2, -1, 1, 17.5),
    Sketcher.Constraint("DistanceY", 0, 2, -1, 1, 0.226497),
])
pad4 = doc.addObject("PartDesign::Pad", "Pad003")
body.addObject(pad4)
pad4.Profile = sketch15
pad4.Length = 6

# Sketch on YZ plane
sketch16 = doc.addObject("Sketcher::SketchObject", "Sketch015")
body.addObject(sketch16)
sketch16.AttachmentSupport = (doc.YZ_Plane, [""])
sketch16.MapMode = "FlatFace"
sketch16.AttachmentOffset = App.Placement(Vector(0, 0, -17.5), App.Rotation())
sketch16.addGeometry([
    Part.Circle(Vector(-8, 29.4, 0), Vector(0, 0, 1), 1.6),
    Part.Circle(Vector(0.7, 34.4, 0), Vector(0, 0, 1), 1.6),
    Part.Circle(Vector(-4, 22.5, 0), Vector(0, 0, 1), 1.6),
    Part.Circle(Vector(4.7, 27.5, 0), Vector(0, 0, 1), 1.6),
], False)
sketch16.addConstraint([
    Sketcher.Constraint("Equal", 0, 1),
    Sketcher.Constraint("Equal", 1, 2),
    Sketcher.Constraint("Equal", 2, 3),
    Sketcher.Constraint("Diameter", 0, 3.3),
    Sketcher.Constraint("DistanceY", 0, 3, 1, 3, 5.0),
    Sketcher.Constraint("DistanceX", 0, 3, 2, 3, 4.0),
    Sketcher.Constraint("DistanceX", 1, 3, 3, 3, 4.0),
    Sketcher.Constraint("DistanceY", 2, 3, 3, 3, 5.0),
    Sketcher.Constraint("DistanceX", 0, 3, -1, 1, 7.990381),
    Sketcher.Constraint("DistanceY", -1, 1, 0, 3, 29.386751),
    Sketcher.Constraint("DistanceY", -1, 1, 2, 3, 22.458548),
    Sketcher.Constraint("DistanceX", -1, 1, 1, 3, 0.669873),
])
pocket10 = doc.addObject("PartDesign::Pocket", "Pocket009")
body.addObject(pocket10)
pocket10.Profile = sketch16
pocket10.Type = "ThroughAll"
pocket10.Midplane = True

# Sketch on an angled plane
sketch17 = doc.addObject("Sketcher::SketchObject", "Sketch016")
body.addObject(sketch17)
sketch17.Placement = App.Placement(Vector(0, -17.222432, 29.830127), App.Rotation(Vector(1, 0, 0), Vector(0, 0.866025404, 0.5), Vector(0, -0.5, 0.866025404), "ZXY"))
sketch17.addGeometry([
    Part.LineSegment(Vector(-35, 112, 0), Vector(-35, 90, 0)),  # 0
    Part.ArcOfCircle(Part.Circle(Vector(-32, 90, 0), Vector(0, 0, 1), 3), math.radians(180), math.radians(270)),  # 1
    Part.LineSegment(Vector(-32, 87, 0), Vector(-28.7, 87, 0)),  # 2
    Part.ArcOfCircle(Part.Circle(Vector(-28.7, 84, 0), Vector(0, 0, 1), 3), math.radians(45), math.radians(90)),  # 3
    Part.LineSegment(Vector(-26.6, 86.1, 0), Vector(-18.4, 77.9, 0)),  # 4
    Part.ArcOfCircle(Part.Circle(Vector(-20.5, 75.8, 0), Vector(0, 0, 1), 3), math.radians(0), math.radians(45)),  # 5
    Part.LineSegment(Vector(-17.5, 75.8, 0), Vector(-17.5, -0.2, 0)),  # 6
    Part.LineSegment(Vector(-17.5, -0.2, 0), Vector(17.5, -0.2, 0)),  # 7
    Part.LineSegment(Vector(17.5, -0.2, 0), Vector(17.5, 75.8, 0)),  # 8
    Part.ArcOfCircle(Part.Circle(Vector(20.5, 75.8, 0), Vector(0, 0, 1), 3), math.radians(135), math.radians(180)),  # 9
    Part.LineSegment(Vector(18.4, 77.9, 0), Vector(26.6, 86.1, 0)),  # 10
    Part.ArcOfCircle(Part.Circle(Vector(28.7, 84, 0), Vector(0, 0, 1), 3), math.radians(90), math.radians(135)),  # 11
    Part.LineSegment(Vector(28.7, 87, 0), Vector(32, 87, 0)),  # 12
    Part.ArcOfCircle(Part.Circle(Vector(32, 90, 0), Vector(0, 0, 1), 3), math.radians(-90), math.radians(0)),  # 13
    Part.LineSegment(Vector(35, 90, 0), Vector(35, 112, 0)),  # 14
    Part.ArcOfCircle(Part.Circle(Vector(0, 112, 0), Vector(0, 0, 1), 35), math.radians(0), math.radians(180)),  # 15
], False)
sketch17.addConstraint([
    Sketcher.Constraint("Tangent", 0, 2, 1, 1),
    Sketcher.Constraint("Tangent", 1, 2, 2, 1),
    Sketcher.Constraint("Tangent", 2, 2, 3, 2),
    Sketcher.Constraint("Tangent", 3, 1, 4, 1),
    Sketcher.Constraint("Tangent", 4, 2, 5, 2),
    Sketcher.Constraint("Tangent", 5, 1, 6, 1),
    Sketcher.Constraint("Coincident", 6, 2, 7, 1),
    Sketcher.Constraint("Coincident", 7, 2, 8, 1),
    Sketcher.Constraint("Tangent", 8, 2, 9, 2),
    Sketcher.Constraint("Tangent", 9, 1, 10, 1),
    Sketcher.Constraint("Tangent", 10, 2, 11, 2),
    Sketcher.Constraint("Tangent", 11, 1, 12, 1),
    Sketcher.Constraint("Tangent", 12, 2, 13, 1),
    Sketcher.Constraint("Tangent", 13, 2, 14, 1),
    Sketcher.Constraint("Tangent", 14, 2, 15, 1),
    Sketcher.Constraint("Tangent", 15, 2, 0, 1),
    Sketcher.Constraint("Vertical", 0),
    Sketcher.Constraint("Horizontal", 2),
    Sketcher.Constraint("Vertical", 6),
    Sketcher.Constraint("Horizontal", 7),
    Sketcher.Constraint("Vertical", 8),
    Sketcher.Constraint("Horizontal", 12),
    Sketcher.Constraint("Vertical", 14),
    Sketcher.Constraint("Equal", 1, 3),
    Sketcher.Constraint("Equal", 3, 5),
    Sketcher.Constraint("Equal", 5, 9),
    Sketcher.Constraint("Equal", 9, 11),
    Sketcher.Constraint("Equal", 11, 13),
    Sketcher.Constraint("Symmetric", 5, 3, 9, 3, -2),
    Sketcher.Constraint("Symmetric", 3, 3, 11, 3, -2),
    Sketcher.Constraint("PointOnObject", 15, 3, -2),
    Sketcher.Constraint("Perpendicular", 4, 10),
    Sketcher.Constraint("Radius", 1, 3.0),
    Sketcher.Constraint("Radius", 15, 35.0),
    Sketcher.Constraint("DistanceX", 7, 1, 7, 2, 35.0),
    Sketcher.Constraint("DistanceY", 0, 2, 0, 1, 22.0),
    Sketcher.Constraint("DistanceY", -1, 1, 1, 3, 90.0),
    Sketcher.Constraint("DistanceX", 2, 1, 2, 2, 3.257359),
    Sketcher.Constraint("DistanceY", 6, 2, 6, 1, 75.983857),
])
pocket11 = doc.addObject("PartDesign::Pocket", "Pocket010")
body.addObject(pocket11)
pocket11.Profile = sketch17
pocket11.Length = 1

# Sketch on YZ plane
sketch18 = doc.addObject("Sketcher::SketchObject", "Sketch017")
body.addObject(sketch18)
sketch18.AttachmentSupport = (doc.YZ_Plane, [""])
sketch18.MapMode = "FlatFace"
sketch18.AttachmentOffset = App.Placement(Vector(0, 0, -17.5), App.Rotation())
sketch18.addGeometry([
    Part.Circle(Vector(26.7, 49.4, 0), Vector(0, 0, 1), 1.6),
    Part.Circle(Vector(39.6, 56.9, 0), Vector(0, 0, 1), 1.6),
    Part.Circle(Vector(13.7, 41.9, 0), Vector(0, 0, 1), 1.6),
], False)
sketch18.addConstraint([
    Sketcher.Constraint("Equal", 0, 1),
    Sketcher.Constraint("Equal", 1, 2),
    Sketcher.Constraint("Diameter", 0, 3.3),
    Sketcher.Constraint("DistanceY", 2, 3, 1, 3, 15.0),
    Sketcher.Constraint("DistanceY", 0, 3, 1, 3, 7.5),
    Sketcher.Constraint("DistanceY", -1, 1, 0, 3, 49.386751),
    Sketcher.Constraint("DistanceX", 0, 3, 1, 3, 12.990381),
    Sketcher.Constraint("DistanceX", 2, 3, 0, 3, 12.990381),
    Sketcher.Constraint("DistanceX", -1, 1, 0, 3, 26.650635),
])
pocket12 = doc.addObject("PartDesign::Pocket", "Pocket011")
body.addObject(pocket12)
pocket12.Profile = sketch18
pocket12.Type = "ThroughAll"
pocket12.Reversed = True

# Sketch on YZ plane
sketch19 = doc.addObject("Sketcher::SketchObject", "Sketch018")
body.addObject(sketch19)
sketch19.AttachmentSupport = (doc.YZ_Plane, [""])
sketch19.MapMode = "FlatFace"
sketch19.AttachmentOffset = App.Placement(Vector(0, 0, 17.5), App.Rotation())
sketch19.addGeometry([
    Part.LineSegment(Vector(53, 59, 0), Vector(-12, 21, 0)),
    Part.LineSegment(Vector(-12, 21, 0), Vector(-5, 9, 0)),
    Part.LineSegment(Vector(-5, 9, 0), Vector(53, 59, 0)),
], False)
sketch19.addConstraint([
    Sketcher.Constraint("Coincident", 0, 2, 1, 1),
    Sketcher.Constraint("Coincident", 1, 2, 2, 1),
    Sketcher.Constraint("Coincident", 2, 2, 0, 1),
    Sketcher.Constraint("Perpendicular", 0, 1),
    Sketcher.Constraint("Angle", 0, Q("-150 deg")),
    Sketcher.Constraint("Distance", 1, 13.986411),
    Sketcher.Constraint("Distance", 2, 77.260379),
    Sketcher.Constraint("DistanceX", 1, 2, -1, 1, 5.425379),
    Sketcher.Constraint("DistanceY", -1, 1, 0, 2, 21.056624),
])
pocket13 = doc.addObject("PartDesign::Pocket", "Pocket012")
body.addObject(pocket13)
pocket13.Profile = sketch19
pocket13.Type = "ThroughAll"
pocket13.Midplane = True

# Sketch on an angled plane
sketch20 = doc.addObject("Sketcher::SketchObject", "Sketch019")
body.addObject(sketch20)
sketch20.Placement = App.Placement(Vector(0, -12.222432, 21.169873), App.Rotation(Vector(-1, 0, 0), Vector(0, 0.866025404, 0.5), Vector(0, 0.5, -0.866025404), "ZXY"))
sketch20.addGeometry([
    Part.Circle(Vector(-9, 59, 0), Vector(0, 0, 1), 1.2),
    Part.Circle(Vector(9, 59, 0), Vector(0, 0, 1), 1.2),
    Part.Circle(Vector(-9, 13.8, 0), Vector(0, 0, 1), 1.2),
    Part.Circle(Vector(9, 13.8, 0), Vector(0, 0, 1), 1.2),
], False)
sketch20.addConstraint([
    Sketcher.Constraint("Equal", 0, 1),
    Sketcher.Constraint("Equal", 1, 2),
    Sketcher.Constraint("Equal", 2, 3),
    Sketcher.Constraint("Symmetric", 0, 3, 1, 3, -2),
    Sketcher.Constraint("Symmetric", 2, 3, 3, 3, -2),
    Sketcher.Constraint("Vertical", 0, 3, 2, 3),
    Sketcher.Constraint("Diameter", 0, 2.5),
    Sketcher.Constraint("DistanceX", 0, 3, -1, 1, 9.0),
    Sketcher.Constraint("DistanceY", 2, 3, 0, 3, 45.2),
    Sketcher.Constraint("DistanceY", -1, 1, 0, 3, 58.973503),
])
pocket14 = doc.addObject("PartDesign::Pocket", "Pocket013")
body.addObject(pocket14)
pocket14.Profile = sketch20
pocket14.Length = 10

doc.recompute()
